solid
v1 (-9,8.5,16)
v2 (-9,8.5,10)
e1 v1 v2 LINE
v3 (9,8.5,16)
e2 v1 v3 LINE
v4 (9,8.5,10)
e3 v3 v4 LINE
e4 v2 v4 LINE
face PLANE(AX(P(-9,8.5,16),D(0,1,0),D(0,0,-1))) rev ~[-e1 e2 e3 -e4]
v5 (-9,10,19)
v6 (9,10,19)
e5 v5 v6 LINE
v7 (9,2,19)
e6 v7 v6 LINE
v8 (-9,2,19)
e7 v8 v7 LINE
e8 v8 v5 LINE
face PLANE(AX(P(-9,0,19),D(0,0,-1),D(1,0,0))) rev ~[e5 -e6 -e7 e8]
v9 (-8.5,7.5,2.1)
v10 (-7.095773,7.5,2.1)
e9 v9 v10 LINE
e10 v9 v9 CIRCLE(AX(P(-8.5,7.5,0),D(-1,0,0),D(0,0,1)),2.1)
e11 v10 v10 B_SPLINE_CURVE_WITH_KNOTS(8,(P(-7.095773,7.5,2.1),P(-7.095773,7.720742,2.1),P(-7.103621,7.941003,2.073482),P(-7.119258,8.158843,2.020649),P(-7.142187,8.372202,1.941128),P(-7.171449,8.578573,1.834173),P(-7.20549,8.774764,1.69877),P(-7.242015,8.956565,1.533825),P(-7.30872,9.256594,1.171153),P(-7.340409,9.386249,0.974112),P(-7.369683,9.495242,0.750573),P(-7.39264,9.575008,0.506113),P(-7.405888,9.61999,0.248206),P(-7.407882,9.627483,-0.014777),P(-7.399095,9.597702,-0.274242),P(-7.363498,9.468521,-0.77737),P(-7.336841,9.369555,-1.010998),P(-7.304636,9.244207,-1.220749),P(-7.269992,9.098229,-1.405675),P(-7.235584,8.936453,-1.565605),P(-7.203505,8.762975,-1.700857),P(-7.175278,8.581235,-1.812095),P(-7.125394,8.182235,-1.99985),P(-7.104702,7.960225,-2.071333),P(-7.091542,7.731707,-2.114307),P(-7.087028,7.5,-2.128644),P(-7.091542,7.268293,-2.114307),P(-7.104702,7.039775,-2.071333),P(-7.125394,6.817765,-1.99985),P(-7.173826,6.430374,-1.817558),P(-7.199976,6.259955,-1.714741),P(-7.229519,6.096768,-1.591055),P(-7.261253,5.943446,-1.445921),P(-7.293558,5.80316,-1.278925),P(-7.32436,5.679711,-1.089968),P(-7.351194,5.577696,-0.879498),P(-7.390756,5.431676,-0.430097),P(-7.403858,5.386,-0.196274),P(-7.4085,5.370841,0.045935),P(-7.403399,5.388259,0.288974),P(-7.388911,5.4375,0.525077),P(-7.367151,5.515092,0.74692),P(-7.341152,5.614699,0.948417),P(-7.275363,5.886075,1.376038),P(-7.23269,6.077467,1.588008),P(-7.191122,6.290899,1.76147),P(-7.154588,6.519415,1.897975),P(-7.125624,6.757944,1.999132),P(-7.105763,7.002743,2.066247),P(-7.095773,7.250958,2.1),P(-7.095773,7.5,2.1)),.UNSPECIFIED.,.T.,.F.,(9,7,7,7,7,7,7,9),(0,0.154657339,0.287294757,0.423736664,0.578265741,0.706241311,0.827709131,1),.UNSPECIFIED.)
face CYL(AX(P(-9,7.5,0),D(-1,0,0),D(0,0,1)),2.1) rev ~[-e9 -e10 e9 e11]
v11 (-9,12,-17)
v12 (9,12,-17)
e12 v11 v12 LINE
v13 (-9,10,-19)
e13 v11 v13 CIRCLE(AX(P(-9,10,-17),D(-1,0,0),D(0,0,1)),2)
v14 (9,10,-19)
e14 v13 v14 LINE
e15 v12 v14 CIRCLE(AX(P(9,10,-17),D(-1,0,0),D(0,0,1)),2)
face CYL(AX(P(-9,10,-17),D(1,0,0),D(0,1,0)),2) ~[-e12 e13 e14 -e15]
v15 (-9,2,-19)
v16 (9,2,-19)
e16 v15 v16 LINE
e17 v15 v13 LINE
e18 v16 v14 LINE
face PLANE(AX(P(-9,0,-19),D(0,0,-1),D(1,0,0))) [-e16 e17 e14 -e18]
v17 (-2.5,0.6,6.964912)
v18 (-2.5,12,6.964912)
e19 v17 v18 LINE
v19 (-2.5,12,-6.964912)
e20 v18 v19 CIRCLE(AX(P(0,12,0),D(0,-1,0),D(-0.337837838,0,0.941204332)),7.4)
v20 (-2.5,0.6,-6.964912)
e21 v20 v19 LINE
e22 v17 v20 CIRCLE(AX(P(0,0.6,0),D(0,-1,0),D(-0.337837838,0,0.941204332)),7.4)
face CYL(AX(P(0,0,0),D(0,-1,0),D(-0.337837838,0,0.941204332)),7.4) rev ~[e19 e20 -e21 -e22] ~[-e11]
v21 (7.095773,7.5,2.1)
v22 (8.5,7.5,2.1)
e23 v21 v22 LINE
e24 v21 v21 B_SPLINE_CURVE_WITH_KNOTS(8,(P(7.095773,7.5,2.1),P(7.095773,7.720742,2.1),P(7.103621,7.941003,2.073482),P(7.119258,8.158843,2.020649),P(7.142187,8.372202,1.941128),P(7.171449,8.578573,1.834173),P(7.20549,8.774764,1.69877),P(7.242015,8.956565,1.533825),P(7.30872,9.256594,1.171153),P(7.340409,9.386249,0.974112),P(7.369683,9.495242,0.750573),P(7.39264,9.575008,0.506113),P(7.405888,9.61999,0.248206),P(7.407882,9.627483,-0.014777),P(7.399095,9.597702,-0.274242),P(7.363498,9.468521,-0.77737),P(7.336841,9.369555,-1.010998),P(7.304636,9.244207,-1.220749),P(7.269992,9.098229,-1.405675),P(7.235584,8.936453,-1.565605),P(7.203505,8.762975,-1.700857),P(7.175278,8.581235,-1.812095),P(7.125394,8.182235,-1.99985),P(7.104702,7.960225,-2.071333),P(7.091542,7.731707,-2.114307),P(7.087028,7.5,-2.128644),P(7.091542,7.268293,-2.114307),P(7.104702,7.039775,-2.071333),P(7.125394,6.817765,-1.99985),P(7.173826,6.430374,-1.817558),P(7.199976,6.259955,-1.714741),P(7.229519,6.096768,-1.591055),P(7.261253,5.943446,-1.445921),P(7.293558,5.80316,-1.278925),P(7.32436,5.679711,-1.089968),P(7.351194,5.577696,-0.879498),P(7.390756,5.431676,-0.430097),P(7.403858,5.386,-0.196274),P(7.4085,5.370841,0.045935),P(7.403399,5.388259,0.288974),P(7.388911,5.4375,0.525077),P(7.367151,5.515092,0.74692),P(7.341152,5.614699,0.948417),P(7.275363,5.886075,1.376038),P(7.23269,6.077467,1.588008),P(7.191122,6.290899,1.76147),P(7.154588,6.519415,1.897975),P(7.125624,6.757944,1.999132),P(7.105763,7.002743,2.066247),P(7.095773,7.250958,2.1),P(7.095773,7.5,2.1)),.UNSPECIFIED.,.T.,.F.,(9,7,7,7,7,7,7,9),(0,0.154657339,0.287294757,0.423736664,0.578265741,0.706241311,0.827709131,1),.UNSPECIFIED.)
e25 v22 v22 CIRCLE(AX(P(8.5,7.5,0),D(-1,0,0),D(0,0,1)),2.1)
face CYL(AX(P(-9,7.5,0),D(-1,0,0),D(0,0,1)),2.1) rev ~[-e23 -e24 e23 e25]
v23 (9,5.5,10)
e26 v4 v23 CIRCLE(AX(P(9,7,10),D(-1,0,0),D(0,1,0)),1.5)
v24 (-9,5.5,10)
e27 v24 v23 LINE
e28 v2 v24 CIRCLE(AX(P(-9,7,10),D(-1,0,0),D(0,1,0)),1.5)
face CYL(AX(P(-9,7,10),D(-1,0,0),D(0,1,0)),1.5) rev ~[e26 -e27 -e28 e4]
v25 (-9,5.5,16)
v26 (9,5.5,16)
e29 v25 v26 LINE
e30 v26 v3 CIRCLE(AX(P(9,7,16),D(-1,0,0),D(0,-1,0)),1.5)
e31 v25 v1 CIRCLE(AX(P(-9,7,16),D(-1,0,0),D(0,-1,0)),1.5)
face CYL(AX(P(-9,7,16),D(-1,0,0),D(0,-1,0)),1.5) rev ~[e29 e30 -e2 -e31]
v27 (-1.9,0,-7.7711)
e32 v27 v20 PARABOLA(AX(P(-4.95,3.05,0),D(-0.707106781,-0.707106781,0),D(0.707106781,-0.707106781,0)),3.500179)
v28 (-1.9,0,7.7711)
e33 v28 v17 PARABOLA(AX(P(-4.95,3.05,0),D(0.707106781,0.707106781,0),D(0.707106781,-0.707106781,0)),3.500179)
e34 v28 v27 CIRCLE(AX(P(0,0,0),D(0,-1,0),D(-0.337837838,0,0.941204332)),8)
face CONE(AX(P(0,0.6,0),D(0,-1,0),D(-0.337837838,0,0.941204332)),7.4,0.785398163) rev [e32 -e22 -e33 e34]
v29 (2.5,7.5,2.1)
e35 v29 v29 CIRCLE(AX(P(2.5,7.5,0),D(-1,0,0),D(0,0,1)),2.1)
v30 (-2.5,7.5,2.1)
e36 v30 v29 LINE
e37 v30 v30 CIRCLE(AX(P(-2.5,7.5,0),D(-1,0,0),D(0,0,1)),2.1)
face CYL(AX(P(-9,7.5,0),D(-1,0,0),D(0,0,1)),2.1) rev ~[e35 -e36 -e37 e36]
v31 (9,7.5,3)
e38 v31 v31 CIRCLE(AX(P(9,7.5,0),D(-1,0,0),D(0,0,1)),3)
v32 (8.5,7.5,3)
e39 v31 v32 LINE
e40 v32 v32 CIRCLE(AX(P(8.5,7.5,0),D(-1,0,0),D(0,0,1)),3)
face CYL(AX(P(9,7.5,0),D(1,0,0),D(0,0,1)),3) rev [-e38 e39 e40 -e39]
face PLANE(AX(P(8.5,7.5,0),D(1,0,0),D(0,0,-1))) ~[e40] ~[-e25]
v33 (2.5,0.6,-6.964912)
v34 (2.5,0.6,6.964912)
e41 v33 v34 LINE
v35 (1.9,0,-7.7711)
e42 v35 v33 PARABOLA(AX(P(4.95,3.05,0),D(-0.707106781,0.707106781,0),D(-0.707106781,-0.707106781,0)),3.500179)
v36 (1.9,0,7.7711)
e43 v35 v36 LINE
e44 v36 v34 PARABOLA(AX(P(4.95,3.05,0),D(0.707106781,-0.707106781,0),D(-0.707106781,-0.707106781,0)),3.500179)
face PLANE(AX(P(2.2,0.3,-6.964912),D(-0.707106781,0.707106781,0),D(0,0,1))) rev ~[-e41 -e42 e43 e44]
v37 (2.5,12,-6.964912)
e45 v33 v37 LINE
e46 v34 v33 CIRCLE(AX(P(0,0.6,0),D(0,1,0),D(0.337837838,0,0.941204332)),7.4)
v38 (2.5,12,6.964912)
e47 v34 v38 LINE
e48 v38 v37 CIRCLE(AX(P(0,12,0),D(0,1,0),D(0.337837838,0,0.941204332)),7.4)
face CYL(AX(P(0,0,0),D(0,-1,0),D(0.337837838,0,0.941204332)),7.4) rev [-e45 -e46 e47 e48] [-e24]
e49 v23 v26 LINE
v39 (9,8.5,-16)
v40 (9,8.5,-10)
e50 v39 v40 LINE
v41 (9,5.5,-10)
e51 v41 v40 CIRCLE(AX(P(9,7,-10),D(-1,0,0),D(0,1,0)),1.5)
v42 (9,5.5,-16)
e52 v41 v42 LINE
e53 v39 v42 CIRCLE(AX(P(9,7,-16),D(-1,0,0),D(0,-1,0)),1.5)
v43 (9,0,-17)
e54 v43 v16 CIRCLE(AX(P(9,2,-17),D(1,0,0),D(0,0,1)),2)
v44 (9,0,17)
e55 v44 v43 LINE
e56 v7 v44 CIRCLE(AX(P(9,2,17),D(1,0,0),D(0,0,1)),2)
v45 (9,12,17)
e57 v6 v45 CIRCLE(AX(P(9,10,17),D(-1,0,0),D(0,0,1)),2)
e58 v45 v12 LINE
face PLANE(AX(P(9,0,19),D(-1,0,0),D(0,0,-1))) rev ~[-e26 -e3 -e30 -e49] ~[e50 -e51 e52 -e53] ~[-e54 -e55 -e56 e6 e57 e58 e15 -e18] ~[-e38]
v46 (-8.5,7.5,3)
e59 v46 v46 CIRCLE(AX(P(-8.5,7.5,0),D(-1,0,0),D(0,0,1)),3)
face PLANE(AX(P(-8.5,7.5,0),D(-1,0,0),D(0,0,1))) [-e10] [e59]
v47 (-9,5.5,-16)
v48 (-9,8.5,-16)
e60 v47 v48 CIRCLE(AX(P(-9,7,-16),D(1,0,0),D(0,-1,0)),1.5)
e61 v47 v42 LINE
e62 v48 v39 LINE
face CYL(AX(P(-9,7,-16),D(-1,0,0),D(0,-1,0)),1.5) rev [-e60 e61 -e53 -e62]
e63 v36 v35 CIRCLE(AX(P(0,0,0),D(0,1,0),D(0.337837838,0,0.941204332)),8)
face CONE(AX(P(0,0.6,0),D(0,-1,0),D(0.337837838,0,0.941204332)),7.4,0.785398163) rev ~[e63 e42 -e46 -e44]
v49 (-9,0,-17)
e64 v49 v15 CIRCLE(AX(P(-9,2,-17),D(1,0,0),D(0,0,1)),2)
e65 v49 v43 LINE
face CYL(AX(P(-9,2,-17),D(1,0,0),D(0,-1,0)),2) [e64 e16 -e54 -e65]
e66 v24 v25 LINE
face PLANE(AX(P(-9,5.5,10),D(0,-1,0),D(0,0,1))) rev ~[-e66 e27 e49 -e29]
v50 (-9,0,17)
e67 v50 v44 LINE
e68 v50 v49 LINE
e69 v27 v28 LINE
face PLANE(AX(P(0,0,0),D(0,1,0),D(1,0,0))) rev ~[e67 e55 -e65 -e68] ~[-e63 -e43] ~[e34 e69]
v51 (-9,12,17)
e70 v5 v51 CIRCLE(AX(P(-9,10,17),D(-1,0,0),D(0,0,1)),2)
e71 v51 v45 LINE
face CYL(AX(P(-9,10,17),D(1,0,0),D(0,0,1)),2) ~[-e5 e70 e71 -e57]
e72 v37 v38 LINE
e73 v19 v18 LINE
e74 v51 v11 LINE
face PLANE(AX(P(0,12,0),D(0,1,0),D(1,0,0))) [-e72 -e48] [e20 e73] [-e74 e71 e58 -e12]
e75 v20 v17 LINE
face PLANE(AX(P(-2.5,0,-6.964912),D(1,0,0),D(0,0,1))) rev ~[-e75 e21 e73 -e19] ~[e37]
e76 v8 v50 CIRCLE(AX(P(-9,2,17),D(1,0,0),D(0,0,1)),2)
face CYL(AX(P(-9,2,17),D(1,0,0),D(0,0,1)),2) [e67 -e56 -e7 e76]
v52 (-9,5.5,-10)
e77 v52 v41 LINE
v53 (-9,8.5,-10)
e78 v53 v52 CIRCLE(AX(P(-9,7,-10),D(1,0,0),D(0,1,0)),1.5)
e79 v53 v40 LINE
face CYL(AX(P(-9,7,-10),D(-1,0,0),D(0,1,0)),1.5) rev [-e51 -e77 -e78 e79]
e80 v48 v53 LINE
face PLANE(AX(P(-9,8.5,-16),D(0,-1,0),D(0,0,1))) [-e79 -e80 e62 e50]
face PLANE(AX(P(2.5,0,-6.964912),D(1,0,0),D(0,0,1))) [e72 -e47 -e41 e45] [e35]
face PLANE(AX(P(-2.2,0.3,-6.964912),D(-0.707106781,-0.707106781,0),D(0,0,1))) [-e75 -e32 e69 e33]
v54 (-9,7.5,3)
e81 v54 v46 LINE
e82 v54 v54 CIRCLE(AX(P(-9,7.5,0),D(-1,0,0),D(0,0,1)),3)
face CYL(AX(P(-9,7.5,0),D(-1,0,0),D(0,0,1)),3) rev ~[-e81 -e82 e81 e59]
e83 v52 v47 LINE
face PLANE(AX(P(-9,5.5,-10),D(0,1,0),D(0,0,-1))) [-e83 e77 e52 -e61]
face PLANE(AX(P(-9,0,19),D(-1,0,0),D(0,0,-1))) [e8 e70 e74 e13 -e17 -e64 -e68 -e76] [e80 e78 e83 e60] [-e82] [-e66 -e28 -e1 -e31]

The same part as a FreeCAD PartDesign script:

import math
import FreeCAD as App
import Part
import Sketcher
from FreeCAD import Vector


def edges_at(feature, points):
    """Names of the edges that pass closest to the given points."""
    edges = feature.Shape.Edges
    near = lambda p: min(range(len(edges)), key=lambda i: edges[i].distToShape(Part.Vertex(*p))[0])
    return sorted({f"Edge{near(p) + 1}" for p in points})

doc = App.newDocument("Part")
params = doc.addObject("Spreadsheet::Sheet", "Params")
for row, (alias, value) in enumerate([
    ("sketch1_radius", "7.4 mm"),
    ("sketch1_width", "18 mm"),
    ("sketch1_height", "38 mm"),
    ("pad1_length", "12 mm"),
    ("sketch2_diameter", "4.2 mm"),
    ("sketch3_diameter", "6 mm"),
    ("pocket2_length", "0.5 mm"),
    ("sketch4_radius", "1.5 mm"),
    ("sketch4_height", "6 mm"),
    ("fillet_radius", "2 mm"),
    ("chamfer_size", "0.6 mm"),
], start=1):
    params.set(f"A{row}", alias)
    params.set(f"B{row}", "=" + value)
    params.setAlias(f"B{row}", alias)

body = doc.addObject("PartDesign::Body", "Body")

# Sketch on XZ plane
sketch1 = body.newObject("Sketcher::SketchObject", "Sketch")
sketch1.AttachmentSupport = (doc.getObject("XZ_Plane"), [""])
sketch1.MapMode = "FlatFace"
sketch1.addGeometry([
    Part.LineSegment(Vector(-9, -19, 0), Vector(-9, 19, 0)),  # 0
    Part.LineSegment(Vector(-9, 19, 0), Vector(9, 19, 0)),  # 1
    Part.LineSegment(Vector(9, 19, 0), Vector(9, -19, 0)),  # 2
    Part.LineSegment(Vector(9, -19, 0), Vector(-9, -19, 0)),  # 3
    Part.ArcOfCircle(Part.Circle(Vector(0, 0, 0), Vector(0, 0, 1), 7), math.radians(110), math.radians(250)),  # 4
    Part.LineSegment(Vector(-2, -7, 0), Vector(-2, 7, 0)),  # 5
    Part.LineSegment(Vector(2, 7, 0), Vector(2, -7, 0)),  # 6
    Part.ArcOfCircle(Part.Circle(Vector(0, 0, 0), Vector(0, 0, 1), 7), math.radians(-70), math.radians(70)),  # 7
], False)
sketch1.addConstraint([
    Sketcher.Constraint("Coincident", 0, 2, 1, 1),
    Sketcher.Constraint("Coincident", 1, 2, 2, 1),
    Sketcher.Constraint("Coincident", 2, 2, 3, 1),
    Sketcher.Constraint("Coincident", 3, 2, 0, 1),
    Sketcher.Constraint("Coincident", 4, 1, 5, 2),
    Sketcher.Constraint("Coincident", 5, 1, 4, 2),
    Sketcher.Constraint("Coincident", 6, 1, 7, 2),
    Sketcher.Constraint("Coincident", 7, 1, 6, 2),
    Sketcher.Constraint("Vertical", 0),
    Sketcher.Constraint("Horizontal", 1),
    Sketcher.Constraint("Vertical", 2),
    Sketcher.Constraint("Horizontal", 3),
    Sketcher.Constraint("Vertical", 5),
    Sketcher.Constraint("Vertical", 6),
    Sketcher.Constraint("Coincident", 4, 3, -1, 1),
    Sketcher.Constraint("Coincident", 7, 3, -1, 1),
    Sketcher.Constraint("Equal", 4, 7),
    Sketcher.Constraint("Symmetric", 0, 2, 2, 2, -1, 1),
    Sketcher.Constraint("Horizontal", 4, 1, 6, 1),
    Sketcher.Constraint("Radius", 4, 7.4),
    Sketcher.Constraint("DistanceX", 1, 1, 1, 2, 18.0),
    Sketcher.Constraint("DistanceY", 0, 1, 0, 2, 38.0),
    Sketcher.Constraint("DistanceX", 4, 1, 6, 1, 5.0),
])
sketch1.setExpression("Constraints[19]", "Params.sketch1_radius")
sketch1.setExpression("Constraints[20]", "Params.sketch1_width")
sketch1.setExpression("Constraints[21]", "Params.sketch1_height")
pad1 = body.newObject("PartDesign::Pad", "Pad")
pad1.Profile = sketch1
pad1.setExpression("Length", "Params.pad1_length")
pad1.Reversed = True

# Sketch on YZ plane
sketch2 = body.newObject("Sketcher::SketchObject", "Sketch001")
sketch2.AttachmentSupport = (doc.getObject("YZ_Plane"), [""])
sketch2.MapMode = "FlatFace"
sketch2.AttachmentOffset = App.Placement(Vector(0, 0, -9), App.Rotation())
sketch2.addGeometry(Part.Circle(Vector(7.5, 0, 0), Vector(0, 0, 1), 2.1), False)
sketch2.addConstraint([
    Sketcher.Constraint("PointOnObject", 0, 3, -1),
    Sketcher.Constraint("Diameter", 0, 4.2),
    Sketcher.Constraint("DistanceX", -1, 1, 0, 3, 7.5),
])
sketch2.setExpression("Constraints[1]", "Params.sketch2_diameter")
pocket1 = body.newObject("PartDesign::Pocket", "Pocket")
pocket1.Profile = sketch2
pocket1.Type = "ThroughAll"
pocket1.Reversed = True

# Sketch on YZ plane
sketch3 = body.newObject("Sketcher::SketchObject", "Sketch002")
sketch3.AttachmentSupport = (doc.getObject("YZ_Plane"), [""])
sketch3.MapMode = "FlatFace"
sketch3.AttachmentOffset = App.Placement(Vector(0, 0, -9), App.Rotation())
sketch3.addGeometry(Part.Circle(Vector(7.5, 0, 0), Vector(0, 0, 1), 3), False)
sketch3.addConstraint([
    Sketcher.Constraint("PointOnObject", 0, 3, -1),
    Sketcher.Constraint("Diameter", 0, 6.0),
    Sketcher.Constraint("DistanceX", -1, 1, 0, 3, 7.5),
])
sketch3.setExpression("Constraints[1]", "Params.sketch3_diameter")
pocket2 = body.newObject("PartDesign::Pocket", "Pocket001")
pocket2.Profile = sketch3
pocket2.setExpression("Length", "Params.pocket2_length")
pocket2.Reversed = True
doc.recompute()

mirrored = body.newObject("PartDesign::Mirrored", "Mirrored")
mirrored.Originals = [pocket2]
mirrored.MirrorPlane = (doc.getObject("YZ_Plane"), [""])
body.Tip = mirrored

# Sketch on YZ plane
sketch4 = body.newObject("Sketcher::SketchObject", "Sketch003")
sketch4.AttachmentSupport = (doc.getObject("YZ_Plane"), [""])
sketch4.MapMode = "FlatFace"
sketch4.AttachmentOffset = App.Placement(Vector(0, 0, -9), App.Rotation())
sketch4.addGeometry([
    Part.LineSegment(Vector(8.5, -10, 0), Vector(8.5, -16, 0)),  # 0
    Part.ArcOfCircle(Part.Circle(Vector(7, -16, 0), Vector(0, 0, 1), 1.5), math.radians(180), math.radians(360)),  # 1
    Part.LineSegment(Vector(5.5, -16, 0), Vector(5.5, -10, 0)),  # 2
    Part.ArcOfCircle(Part.Circle(Vector(7, -10, 0), Vector(0, 0, 1), 1.5), math.radians(0), math.radians(180)),  # 3
    Part.LineSegment(Vector(5.5, 10, 0), Vector(5.5, 16, 0)),  # 4
    Part.ArcOfCircle(Part.Circle(Vector(7, 16, 0), Vector(0, 0, 1), 1.5), math.radians(0), math.radians(180)),  # 5
    Part.LineSegment(Vector(8.5, 16, 0), Vector(8.5, 10, 0)),  # 6
    Part.ArcOfCircle(Part.Circle(Vector(7, 10, 0), Vector(0, 0, 1), 1.5), math.radians(180), math.radians(360)),  # 7
], False)
sketch4.addConstraint([
    Sketcher.Constraint("Tangent", 0, 2, 1, 2),
    Sketcher.Constraint("Tangent", 1, 1, 2, 1),
    Sketcher.Constraint("Tangent", 2, 2, 3, 2),
    Sketcher.Constraint("Tangent", 3, 1, 0, 1),
    Sketcher.Constraint("Tangent", 4, 2, 5, 2),
    Sketcher.Constraint("Tangent", 5, 1, 6, 1),
    Sketcher.Constraint("Tangent", 6, 2, 7, 2),
    Sketcher.Constraint("Tangent", 7, 1, 4, 1),
    Sketcher.Constraint("Vertical", 0),
    Sketcher.Constraint("Vertical", 2),
    Sketcher.Constraint("Vertical", 4),
    Sketcher.Constraint("Vertical", 6),
    Sketcher.Constraint("Equal", 3, 5),
    Sketcher.Constraint("Symmetric", 1, 3, 5, 3, -1),
    Sketcher.Constraint("Equal", 2, 4),
    Sketcher.Constraint("Radius", 1, 1.5),
    Sketcher.Constraint("DistanceY", 0, 2, 0, 1, 6.0),
    Sketcher.Constraint("DistanceX", -1, 1, 1, 3, 7.0),
    Sketcher.Constraint("DistanceY", 1, 3, -1, 1, 16.0),
])
sketch4.setExpression("Constraints[15]", "Params.sketch4_radius")
sketch4.setExpression("Constraints[16]", "Params.sketch4_height")
pocket3 = body.newObject("PartDesign::Pocket", "Pocket002")
pocket3.Profile = sketch4
pocket3.Type = "ThroughAll"
pocket3.Reversed = True
doc.recompute()

fillet = body.newObject("PartDesign::Fillet", "Fillet")
fillet.Base = (pocket3, edges_at(pocket3, [
    (0, 12, 19),
    (0, 0, 19),
    (0, 0, -19),
    (0, 12, -19),
]))
fillet.setExpression("Radius", "Params.fillet_radius")
doc.recompute()

chamfer = body.newObject("PartDesign::Chamfer", "Chamfer")
chamfer.Base = (fillet, edges_at(fillet, [
    (7.4, 0, 0),
    (2.5, 0, 0),
    (-7.4, 0, 0),
    (-2.5, 0, 0),
]))
chamfer.setExpression("Size", "Params.chamfer_size")

doc.recompute()
